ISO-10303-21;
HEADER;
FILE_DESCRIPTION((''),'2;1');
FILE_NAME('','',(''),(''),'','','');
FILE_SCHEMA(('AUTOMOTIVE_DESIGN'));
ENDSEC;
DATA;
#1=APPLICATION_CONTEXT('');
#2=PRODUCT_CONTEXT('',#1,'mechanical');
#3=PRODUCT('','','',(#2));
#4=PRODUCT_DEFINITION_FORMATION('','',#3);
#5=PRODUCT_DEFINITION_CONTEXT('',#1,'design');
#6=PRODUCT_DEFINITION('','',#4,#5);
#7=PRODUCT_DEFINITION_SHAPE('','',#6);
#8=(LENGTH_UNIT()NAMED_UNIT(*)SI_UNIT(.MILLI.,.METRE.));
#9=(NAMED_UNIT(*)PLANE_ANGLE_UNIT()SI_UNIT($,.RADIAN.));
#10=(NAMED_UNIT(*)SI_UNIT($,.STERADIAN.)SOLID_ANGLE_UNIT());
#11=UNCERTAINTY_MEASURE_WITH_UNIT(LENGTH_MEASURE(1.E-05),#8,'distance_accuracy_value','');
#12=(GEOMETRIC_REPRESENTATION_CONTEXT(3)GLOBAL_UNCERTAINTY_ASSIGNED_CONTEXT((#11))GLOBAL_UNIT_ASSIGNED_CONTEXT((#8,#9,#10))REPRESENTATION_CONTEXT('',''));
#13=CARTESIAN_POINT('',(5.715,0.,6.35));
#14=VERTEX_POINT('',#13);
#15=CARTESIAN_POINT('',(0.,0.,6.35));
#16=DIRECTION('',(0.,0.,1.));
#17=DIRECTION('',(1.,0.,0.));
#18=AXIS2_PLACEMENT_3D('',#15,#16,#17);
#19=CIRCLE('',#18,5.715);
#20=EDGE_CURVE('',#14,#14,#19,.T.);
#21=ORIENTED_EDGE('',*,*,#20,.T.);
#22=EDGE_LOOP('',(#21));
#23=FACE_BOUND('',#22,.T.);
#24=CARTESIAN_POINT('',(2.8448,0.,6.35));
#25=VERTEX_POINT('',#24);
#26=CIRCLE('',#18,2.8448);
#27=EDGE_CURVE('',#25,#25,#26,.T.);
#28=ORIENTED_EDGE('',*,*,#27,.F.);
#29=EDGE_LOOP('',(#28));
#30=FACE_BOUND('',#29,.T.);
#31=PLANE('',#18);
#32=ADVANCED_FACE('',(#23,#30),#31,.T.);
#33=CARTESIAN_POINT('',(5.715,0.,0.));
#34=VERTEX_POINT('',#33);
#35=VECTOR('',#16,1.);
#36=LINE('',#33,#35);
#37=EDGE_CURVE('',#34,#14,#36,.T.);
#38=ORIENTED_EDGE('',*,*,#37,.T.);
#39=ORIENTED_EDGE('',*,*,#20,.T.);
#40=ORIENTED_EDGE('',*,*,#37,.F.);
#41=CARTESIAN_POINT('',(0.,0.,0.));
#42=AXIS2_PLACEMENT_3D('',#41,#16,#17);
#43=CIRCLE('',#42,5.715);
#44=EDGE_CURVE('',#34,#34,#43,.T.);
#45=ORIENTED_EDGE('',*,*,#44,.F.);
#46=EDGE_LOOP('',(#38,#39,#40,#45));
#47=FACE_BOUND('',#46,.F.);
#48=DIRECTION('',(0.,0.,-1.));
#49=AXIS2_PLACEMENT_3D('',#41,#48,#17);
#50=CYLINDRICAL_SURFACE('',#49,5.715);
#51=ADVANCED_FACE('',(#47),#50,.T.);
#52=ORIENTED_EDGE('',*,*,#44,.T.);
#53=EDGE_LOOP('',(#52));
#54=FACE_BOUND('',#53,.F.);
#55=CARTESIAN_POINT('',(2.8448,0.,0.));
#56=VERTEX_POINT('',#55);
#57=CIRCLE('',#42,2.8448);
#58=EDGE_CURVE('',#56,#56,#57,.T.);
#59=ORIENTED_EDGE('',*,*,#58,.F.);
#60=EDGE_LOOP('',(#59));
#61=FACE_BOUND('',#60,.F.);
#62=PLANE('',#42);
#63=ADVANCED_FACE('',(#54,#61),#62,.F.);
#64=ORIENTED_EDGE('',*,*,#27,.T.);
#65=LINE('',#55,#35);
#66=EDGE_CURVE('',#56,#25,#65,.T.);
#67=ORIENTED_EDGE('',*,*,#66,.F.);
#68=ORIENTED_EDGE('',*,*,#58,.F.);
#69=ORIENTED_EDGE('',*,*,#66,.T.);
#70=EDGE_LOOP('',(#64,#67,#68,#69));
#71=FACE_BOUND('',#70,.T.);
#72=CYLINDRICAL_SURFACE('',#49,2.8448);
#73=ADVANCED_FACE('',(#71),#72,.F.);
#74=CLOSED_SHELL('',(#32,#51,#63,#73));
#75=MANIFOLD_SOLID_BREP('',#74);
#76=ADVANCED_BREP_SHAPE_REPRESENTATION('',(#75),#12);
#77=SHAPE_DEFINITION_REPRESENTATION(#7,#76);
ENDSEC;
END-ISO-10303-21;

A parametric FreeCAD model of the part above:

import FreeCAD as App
import Part
import Sketcher

V = App.Vector
Q = App.Units.Quantity

doc = App.newDocument("Part")
body = doc.addObject("PartDesign::Body", "Body")

# Sketch on XY plane
sketch1 = body.newObject("Sketcher::SketchObject", "Sketch")
sketch1.AttachmentSupport = (doc.getObject("XY_Plane"), [""])
sketch1.MapMode = "FlatFace"
sketch1.addGeometry(Part.Circle(V(0, 0, 0), V(0, 0, 1), 5.7), False)
sketch1.addGeometry(Part.Circle(V(0, 0, 0), V(0, 0, 1), 2.8), False)
sketch1.addConstraint(Sketcher.Constraint("Coincident", 0, 3, -1, 1))
sketch1.addConstraint(Sketcher.Constraint("Coincident", 1, 3, -1, 1))
sketch1.addConstraint(Sketcher.Constraint("Diameter", 0, Q("0.45 in")))
sketch1.addConstraint(Sketcher.Constraint("Diameter", 1, Q("0.224 in")))
pad1 = body.newObject("PartDesign::Pad", "Pad")
pad1.Profile = sketch1
pad1.Length = Q("0.25 in")

doc.recompute()
